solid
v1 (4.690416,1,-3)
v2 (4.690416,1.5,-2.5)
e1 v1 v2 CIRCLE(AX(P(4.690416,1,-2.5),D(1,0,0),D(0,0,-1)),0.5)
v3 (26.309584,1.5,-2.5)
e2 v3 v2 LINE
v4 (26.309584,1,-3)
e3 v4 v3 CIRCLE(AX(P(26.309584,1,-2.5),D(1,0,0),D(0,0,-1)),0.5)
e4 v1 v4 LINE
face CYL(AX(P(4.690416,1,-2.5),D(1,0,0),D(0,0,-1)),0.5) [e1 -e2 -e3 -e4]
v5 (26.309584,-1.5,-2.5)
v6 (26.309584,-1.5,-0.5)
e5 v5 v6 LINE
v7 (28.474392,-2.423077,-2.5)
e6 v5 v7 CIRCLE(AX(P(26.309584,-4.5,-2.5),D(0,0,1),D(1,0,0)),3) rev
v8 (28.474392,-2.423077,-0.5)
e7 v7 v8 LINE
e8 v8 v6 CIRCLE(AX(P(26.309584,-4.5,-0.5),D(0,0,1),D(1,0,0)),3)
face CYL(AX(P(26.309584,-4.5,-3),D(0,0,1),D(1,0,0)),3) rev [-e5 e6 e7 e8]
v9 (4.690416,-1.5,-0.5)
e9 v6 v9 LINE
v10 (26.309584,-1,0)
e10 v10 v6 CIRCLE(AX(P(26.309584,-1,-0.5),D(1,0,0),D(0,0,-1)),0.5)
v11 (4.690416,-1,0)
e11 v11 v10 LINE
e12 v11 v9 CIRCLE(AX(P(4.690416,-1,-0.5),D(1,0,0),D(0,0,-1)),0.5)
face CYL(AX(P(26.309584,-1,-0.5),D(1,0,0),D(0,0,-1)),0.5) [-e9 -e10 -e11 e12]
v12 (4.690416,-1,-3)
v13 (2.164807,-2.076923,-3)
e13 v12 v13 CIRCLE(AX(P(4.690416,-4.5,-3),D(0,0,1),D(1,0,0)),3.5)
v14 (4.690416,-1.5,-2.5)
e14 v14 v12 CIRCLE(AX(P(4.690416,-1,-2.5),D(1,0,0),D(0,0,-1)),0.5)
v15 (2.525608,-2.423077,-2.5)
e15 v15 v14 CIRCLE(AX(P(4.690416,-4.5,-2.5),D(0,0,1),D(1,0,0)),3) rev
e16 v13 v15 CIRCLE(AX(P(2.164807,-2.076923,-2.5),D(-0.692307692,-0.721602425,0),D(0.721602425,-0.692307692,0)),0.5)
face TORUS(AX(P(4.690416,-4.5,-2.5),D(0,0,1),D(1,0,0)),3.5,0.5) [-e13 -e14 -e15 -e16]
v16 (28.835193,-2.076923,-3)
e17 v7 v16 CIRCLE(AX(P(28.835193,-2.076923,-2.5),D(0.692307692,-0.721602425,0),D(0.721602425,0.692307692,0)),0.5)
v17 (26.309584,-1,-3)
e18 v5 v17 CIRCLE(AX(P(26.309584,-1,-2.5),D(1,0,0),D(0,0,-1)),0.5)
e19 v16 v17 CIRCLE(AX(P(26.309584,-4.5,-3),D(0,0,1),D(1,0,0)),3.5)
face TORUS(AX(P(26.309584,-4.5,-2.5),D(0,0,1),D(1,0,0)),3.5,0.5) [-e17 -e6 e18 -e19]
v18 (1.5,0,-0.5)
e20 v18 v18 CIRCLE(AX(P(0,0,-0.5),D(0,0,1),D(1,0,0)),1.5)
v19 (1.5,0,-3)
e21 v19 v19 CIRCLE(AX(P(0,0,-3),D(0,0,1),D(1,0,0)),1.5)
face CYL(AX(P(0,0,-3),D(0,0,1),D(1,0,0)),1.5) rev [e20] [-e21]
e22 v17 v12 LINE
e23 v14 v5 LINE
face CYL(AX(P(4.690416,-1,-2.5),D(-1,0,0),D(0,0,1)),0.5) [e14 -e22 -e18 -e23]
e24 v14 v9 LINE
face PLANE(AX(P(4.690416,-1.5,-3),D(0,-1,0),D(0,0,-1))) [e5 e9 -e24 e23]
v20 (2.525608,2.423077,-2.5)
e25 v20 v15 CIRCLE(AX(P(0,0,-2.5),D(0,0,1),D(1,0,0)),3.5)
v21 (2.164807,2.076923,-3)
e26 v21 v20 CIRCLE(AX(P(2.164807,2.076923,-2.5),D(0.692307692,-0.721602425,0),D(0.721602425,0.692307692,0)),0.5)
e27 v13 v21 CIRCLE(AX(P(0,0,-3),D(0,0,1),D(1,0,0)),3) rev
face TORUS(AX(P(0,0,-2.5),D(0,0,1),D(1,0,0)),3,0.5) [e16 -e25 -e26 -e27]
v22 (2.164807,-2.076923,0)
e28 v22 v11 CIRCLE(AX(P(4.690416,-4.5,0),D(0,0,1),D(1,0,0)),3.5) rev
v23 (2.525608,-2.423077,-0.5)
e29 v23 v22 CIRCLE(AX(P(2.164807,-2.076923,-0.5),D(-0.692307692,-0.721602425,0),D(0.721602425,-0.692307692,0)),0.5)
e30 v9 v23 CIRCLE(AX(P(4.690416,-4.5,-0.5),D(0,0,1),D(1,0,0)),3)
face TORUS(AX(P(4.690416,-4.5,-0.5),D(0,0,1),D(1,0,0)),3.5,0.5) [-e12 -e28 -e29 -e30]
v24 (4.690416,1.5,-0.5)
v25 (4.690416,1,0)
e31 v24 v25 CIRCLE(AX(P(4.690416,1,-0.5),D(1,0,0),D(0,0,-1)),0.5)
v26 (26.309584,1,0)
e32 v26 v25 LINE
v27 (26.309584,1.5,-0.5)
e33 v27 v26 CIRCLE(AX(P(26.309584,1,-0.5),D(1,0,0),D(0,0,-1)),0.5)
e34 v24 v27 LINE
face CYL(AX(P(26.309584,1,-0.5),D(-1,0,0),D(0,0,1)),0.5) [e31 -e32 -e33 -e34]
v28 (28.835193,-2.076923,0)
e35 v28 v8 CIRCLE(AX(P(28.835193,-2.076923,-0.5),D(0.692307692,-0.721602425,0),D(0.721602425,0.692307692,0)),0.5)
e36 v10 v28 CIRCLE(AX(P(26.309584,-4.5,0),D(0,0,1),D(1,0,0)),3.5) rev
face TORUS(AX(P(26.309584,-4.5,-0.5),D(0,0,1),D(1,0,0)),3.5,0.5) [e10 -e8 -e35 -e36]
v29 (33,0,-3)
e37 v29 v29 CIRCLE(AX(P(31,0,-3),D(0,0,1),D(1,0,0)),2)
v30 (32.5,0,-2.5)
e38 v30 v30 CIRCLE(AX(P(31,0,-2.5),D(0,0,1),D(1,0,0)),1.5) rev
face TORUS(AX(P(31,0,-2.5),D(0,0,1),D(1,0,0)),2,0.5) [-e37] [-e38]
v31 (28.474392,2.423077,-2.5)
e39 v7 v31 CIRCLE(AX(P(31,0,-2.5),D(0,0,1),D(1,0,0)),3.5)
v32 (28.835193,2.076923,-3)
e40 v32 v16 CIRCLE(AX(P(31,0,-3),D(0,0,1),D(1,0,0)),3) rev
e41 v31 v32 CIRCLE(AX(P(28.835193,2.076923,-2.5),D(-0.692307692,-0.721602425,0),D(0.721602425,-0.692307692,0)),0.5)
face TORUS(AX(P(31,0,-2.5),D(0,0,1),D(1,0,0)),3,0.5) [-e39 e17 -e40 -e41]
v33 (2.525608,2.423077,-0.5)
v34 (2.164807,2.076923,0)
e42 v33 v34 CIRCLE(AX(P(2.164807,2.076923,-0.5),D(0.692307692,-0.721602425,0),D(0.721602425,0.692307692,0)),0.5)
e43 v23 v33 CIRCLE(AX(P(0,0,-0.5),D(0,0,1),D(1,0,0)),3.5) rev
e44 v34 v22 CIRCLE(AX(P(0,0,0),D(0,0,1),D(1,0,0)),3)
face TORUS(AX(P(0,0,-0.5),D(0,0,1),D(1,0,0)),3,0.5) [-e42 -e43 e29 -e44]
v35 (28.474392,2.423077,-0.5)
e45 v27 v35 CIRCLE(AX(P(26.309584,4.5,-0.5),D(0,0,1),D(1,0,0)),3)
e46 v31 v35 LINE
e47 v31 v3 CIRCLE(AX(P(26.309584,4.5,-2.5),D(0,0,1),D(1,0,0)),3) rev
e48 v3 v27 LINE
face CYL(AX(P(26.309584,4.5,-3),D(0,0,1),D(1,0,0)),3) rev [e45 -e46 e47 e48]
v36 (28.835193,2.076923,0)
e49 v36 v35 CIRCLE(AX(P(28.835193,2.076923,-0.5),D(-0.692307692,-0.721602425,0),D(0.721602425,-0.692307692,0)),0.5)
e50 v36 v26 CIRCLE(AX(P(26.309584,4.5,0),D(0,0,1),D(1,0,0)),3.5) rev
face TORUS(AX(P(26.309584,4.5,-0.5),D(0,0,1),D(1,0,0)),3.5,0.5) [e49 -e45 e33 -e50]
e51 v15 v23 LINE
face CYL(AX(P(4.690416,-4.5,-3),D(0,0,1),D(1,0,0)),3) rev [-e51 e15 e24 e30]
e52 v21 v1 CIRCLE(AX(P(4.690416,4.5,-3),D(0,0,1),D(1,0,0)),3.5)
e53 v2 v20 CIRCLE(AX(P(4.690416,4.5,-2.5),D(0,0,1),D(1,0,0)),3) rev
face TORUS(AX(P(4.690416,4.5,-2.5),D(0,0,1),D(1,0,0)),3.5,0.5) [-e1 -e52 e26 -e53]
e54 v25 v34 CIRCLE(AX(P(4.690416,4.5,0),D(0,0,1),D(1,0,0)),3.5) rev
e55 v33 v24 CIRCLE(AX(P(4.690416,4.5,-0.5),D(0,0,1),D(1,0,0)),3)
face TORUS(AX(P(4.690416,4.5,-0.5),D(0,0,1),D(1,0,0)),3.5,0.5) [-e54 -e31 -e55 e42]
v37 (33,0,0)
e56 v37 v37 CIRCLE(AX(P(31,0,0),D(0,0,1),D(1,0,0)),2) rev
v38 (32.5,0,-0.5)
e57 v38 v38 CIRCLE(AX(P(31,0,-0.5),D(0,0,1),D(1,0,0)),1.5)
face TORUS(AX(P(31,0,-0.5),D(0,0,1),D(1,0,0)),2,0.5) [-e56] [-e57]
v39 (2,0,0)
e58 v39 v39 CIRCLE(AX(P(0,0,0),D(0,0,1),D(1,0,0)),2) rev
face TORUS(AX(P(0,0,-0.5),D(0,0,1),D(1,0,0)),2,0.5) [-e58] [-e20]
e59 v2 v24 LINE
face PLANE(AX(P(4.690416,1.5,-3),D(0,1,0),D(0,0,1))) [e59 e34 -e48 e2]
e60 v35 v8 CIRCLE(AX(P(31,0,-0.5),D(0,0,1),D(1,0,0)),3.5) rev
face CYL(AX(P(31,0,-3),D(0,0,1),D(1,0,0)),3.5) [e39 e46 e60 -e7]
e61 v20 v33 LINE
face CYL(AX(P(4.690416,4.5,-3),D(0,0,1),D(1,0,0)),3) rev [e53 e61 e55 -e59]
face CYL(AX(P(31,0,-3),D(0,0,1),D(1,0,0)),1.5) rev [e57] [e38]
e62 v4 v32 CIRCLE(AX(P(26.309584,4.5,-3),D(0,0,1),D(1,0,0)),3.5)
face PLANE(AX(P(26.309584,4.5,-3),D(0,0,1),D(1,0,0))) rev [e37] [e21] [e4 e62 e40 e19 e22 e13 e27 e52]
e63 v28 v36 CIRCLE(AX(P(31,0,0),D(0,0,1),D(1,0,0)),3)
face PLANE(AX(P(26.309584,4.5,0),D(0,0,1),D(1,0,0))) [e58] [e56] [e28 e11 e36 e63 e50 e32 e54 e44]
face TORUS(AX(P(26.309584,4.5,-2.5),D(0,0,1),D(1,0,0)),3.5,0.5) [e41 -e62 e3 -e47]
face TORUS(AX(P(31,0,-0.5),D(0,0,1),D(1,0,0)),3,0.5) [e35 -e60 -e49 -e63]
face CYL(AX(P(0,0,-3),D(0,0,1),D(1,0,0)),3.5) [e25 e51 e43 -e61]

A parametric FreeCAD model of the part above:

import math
import FreeCAD as App
import Part
import Sketcher

V = App.Vector
Q = App.Units.Quantity


def edges_at(feature, points):
    """Names of the edges that pass closest to the given points."""
    edges = feature.Shape.Edges
    near = lambda p: min(range(len(edges)), key=lambda i: edges[i].distToShape(Part.Vertex(*p))[0])
    return sorted({f"Edge{near(p) + 1}" for p in points})

doc = App.newDocument("Part")
body = doc.addObject("PartDesign::Body", "Body")

# Sketch on XY plane
sketch1 = body.newObject("Sketcher::SketchObject", "Sketch")
sketch1.AttachmentSupport = (doc.getObject("XY_Plane"), [""])
sketch1.MapMode = "FlatFace"
sketch1.addGeometry([
    Part.LineSegment(V(26.3, 1.5, 0), V(4.7, 1.5, 0)),  # 0
    Part.ArcOfCircle(Part.Circle(V(4.7, 4.5, 0), V(0, 0, 1), 3), math.radians(-136), math.radians(-90)),  # 1
    Part.ArcOfCircle(Part.Circle(V(0, 0, 0), V(0, 0, 1), 3.5), math.radians(44), math.radians(316)),  # 2
    Part.ArcOfCircle(Part.Circle(V(4.7, -4.5, 0), V(0, 0, 1), 3), math.radians(90), math.radians(136)),  # 3
    Part.LineSegment(V(4.7, -1.5, 0), V(26.3, -1.5, 0)),  # 4
    Part.ArcOfCircle(Part.Circle(V(26.3, -4.5, 0), V(0, 0, 1), 3), math.radians(44), math.radians(90)),  # 5
    Part.ArcOfCircle(Part.Circle(V(31, 0, 0), V(0, 0, 1), 3.5), math.radians(-136), math.radians(136)),  # 6
    Part.ArcOfCircle(Part.Circle(V(26.3, 4.5, 0), V(0, 0, 1), 3), math.radians(-90), math.radians(-44)),  # 7
    Part.Circle(V(31, 0, 0), V(0, 0, 1), 1.5),  # 8
    Part.Circle(V(0, 0, 0), V(0, 0, 1), 1.5),  # 9
], False)
sketch1.addConstraint([
    Sketcher.Constraint("Tangent", 0, 2, 1, 2),
    Sketcher.Constraint("Tangent", 1, 1, 2, 1),
    Sketcher.Constraint("Tangent", 2, 2, 3, 2),
    Sketcher.Constraint("Tangent", 3, 1, 4, 1),
    Sketcher.Constraint("Tangent", 4, 2, 5, 2),
    Sketcher.Constraint("Tangent", 5, 1, 6, 1),
    Sketcher.Constraint("Tangent", 6, 2, 7, 2),
    Sketcher.Constraint("Tangent", 7, 1, 0, 1),
    Sketcher.Constraint("Horizontal", 0),
    Sketcher.Constraint("Horizontal", 4),
    Sketcher.Constraint("Coincident", 2, 3, -1, 1),
    Sketcher.Constraint("Coincident", 9, 3, -1, 1),
    Sketcher.Constraint("Coincident", 8, 3, 6, 3),
    Sketcher.Constraint("Equal", 1, 3),
    Sketcher.Constraint("Equal", 3, 5),
    Sketcher.Constraint("Equal", 2, 6),
    Sketcher.Constraint("Equal", 5, 7),
    Sketcher.Constraint("Equal", 8, 9),
    Sketcher.Constraint("Symmetric", 5, 3, 7, 3, -1),
    Sketcher.Constraint("Diameter", 8, Q("3 mm")),
    Sketcher.Constraint("Radius", 1, Q("3 mm")),
    Sketcher.Constraint("Radius", 2, Q("3.5 mm")),
    Sketcher.Constraint("DistanceX", -1, 1, 6, 3, Q("31 mm")),
    Sketcher.Constraint("DistanceY", 3, 3, 1, 3, Q("9 mm")),
])
pad1 = body.newObject("PartDesign::Pad", "Pad")
pad1.Profile = sketch1
pad1.Length = 3
pad1.Reversed = True
doc.recompute()

fillet = body.newObject("PartDesign::Fillet", "Fillet")
fillet.Base = (pad1, edges_at(pad1, [
    (-3.5, 0, 0),
    (3.514, 1.74, 0),
    (15.5, 1.5, 0),
    (27.486, 1.74, 0),
    (3.514, 1.74, -3),
    (-3.5, 0, -3),
    (3.514, -1.74, -3),
    (-1.5, 0, 0),
    (15.5, -1.5, -3),
    (29.5, 0, -3),
    (29.5, 0, 0),
    (27.486, -1.74, -3),
    (34.5, 0, -3),
    (27.486, 1.74, -3),
    (34.5, 0, 0),
    (15.5, 1.5, -3),
    (27.486, -1.74, 0),
    (15.5, -1.5, 0),
    (3.514, -1.74, 0),
]))
fillet.Radius = 0.5

doc.recompute()
